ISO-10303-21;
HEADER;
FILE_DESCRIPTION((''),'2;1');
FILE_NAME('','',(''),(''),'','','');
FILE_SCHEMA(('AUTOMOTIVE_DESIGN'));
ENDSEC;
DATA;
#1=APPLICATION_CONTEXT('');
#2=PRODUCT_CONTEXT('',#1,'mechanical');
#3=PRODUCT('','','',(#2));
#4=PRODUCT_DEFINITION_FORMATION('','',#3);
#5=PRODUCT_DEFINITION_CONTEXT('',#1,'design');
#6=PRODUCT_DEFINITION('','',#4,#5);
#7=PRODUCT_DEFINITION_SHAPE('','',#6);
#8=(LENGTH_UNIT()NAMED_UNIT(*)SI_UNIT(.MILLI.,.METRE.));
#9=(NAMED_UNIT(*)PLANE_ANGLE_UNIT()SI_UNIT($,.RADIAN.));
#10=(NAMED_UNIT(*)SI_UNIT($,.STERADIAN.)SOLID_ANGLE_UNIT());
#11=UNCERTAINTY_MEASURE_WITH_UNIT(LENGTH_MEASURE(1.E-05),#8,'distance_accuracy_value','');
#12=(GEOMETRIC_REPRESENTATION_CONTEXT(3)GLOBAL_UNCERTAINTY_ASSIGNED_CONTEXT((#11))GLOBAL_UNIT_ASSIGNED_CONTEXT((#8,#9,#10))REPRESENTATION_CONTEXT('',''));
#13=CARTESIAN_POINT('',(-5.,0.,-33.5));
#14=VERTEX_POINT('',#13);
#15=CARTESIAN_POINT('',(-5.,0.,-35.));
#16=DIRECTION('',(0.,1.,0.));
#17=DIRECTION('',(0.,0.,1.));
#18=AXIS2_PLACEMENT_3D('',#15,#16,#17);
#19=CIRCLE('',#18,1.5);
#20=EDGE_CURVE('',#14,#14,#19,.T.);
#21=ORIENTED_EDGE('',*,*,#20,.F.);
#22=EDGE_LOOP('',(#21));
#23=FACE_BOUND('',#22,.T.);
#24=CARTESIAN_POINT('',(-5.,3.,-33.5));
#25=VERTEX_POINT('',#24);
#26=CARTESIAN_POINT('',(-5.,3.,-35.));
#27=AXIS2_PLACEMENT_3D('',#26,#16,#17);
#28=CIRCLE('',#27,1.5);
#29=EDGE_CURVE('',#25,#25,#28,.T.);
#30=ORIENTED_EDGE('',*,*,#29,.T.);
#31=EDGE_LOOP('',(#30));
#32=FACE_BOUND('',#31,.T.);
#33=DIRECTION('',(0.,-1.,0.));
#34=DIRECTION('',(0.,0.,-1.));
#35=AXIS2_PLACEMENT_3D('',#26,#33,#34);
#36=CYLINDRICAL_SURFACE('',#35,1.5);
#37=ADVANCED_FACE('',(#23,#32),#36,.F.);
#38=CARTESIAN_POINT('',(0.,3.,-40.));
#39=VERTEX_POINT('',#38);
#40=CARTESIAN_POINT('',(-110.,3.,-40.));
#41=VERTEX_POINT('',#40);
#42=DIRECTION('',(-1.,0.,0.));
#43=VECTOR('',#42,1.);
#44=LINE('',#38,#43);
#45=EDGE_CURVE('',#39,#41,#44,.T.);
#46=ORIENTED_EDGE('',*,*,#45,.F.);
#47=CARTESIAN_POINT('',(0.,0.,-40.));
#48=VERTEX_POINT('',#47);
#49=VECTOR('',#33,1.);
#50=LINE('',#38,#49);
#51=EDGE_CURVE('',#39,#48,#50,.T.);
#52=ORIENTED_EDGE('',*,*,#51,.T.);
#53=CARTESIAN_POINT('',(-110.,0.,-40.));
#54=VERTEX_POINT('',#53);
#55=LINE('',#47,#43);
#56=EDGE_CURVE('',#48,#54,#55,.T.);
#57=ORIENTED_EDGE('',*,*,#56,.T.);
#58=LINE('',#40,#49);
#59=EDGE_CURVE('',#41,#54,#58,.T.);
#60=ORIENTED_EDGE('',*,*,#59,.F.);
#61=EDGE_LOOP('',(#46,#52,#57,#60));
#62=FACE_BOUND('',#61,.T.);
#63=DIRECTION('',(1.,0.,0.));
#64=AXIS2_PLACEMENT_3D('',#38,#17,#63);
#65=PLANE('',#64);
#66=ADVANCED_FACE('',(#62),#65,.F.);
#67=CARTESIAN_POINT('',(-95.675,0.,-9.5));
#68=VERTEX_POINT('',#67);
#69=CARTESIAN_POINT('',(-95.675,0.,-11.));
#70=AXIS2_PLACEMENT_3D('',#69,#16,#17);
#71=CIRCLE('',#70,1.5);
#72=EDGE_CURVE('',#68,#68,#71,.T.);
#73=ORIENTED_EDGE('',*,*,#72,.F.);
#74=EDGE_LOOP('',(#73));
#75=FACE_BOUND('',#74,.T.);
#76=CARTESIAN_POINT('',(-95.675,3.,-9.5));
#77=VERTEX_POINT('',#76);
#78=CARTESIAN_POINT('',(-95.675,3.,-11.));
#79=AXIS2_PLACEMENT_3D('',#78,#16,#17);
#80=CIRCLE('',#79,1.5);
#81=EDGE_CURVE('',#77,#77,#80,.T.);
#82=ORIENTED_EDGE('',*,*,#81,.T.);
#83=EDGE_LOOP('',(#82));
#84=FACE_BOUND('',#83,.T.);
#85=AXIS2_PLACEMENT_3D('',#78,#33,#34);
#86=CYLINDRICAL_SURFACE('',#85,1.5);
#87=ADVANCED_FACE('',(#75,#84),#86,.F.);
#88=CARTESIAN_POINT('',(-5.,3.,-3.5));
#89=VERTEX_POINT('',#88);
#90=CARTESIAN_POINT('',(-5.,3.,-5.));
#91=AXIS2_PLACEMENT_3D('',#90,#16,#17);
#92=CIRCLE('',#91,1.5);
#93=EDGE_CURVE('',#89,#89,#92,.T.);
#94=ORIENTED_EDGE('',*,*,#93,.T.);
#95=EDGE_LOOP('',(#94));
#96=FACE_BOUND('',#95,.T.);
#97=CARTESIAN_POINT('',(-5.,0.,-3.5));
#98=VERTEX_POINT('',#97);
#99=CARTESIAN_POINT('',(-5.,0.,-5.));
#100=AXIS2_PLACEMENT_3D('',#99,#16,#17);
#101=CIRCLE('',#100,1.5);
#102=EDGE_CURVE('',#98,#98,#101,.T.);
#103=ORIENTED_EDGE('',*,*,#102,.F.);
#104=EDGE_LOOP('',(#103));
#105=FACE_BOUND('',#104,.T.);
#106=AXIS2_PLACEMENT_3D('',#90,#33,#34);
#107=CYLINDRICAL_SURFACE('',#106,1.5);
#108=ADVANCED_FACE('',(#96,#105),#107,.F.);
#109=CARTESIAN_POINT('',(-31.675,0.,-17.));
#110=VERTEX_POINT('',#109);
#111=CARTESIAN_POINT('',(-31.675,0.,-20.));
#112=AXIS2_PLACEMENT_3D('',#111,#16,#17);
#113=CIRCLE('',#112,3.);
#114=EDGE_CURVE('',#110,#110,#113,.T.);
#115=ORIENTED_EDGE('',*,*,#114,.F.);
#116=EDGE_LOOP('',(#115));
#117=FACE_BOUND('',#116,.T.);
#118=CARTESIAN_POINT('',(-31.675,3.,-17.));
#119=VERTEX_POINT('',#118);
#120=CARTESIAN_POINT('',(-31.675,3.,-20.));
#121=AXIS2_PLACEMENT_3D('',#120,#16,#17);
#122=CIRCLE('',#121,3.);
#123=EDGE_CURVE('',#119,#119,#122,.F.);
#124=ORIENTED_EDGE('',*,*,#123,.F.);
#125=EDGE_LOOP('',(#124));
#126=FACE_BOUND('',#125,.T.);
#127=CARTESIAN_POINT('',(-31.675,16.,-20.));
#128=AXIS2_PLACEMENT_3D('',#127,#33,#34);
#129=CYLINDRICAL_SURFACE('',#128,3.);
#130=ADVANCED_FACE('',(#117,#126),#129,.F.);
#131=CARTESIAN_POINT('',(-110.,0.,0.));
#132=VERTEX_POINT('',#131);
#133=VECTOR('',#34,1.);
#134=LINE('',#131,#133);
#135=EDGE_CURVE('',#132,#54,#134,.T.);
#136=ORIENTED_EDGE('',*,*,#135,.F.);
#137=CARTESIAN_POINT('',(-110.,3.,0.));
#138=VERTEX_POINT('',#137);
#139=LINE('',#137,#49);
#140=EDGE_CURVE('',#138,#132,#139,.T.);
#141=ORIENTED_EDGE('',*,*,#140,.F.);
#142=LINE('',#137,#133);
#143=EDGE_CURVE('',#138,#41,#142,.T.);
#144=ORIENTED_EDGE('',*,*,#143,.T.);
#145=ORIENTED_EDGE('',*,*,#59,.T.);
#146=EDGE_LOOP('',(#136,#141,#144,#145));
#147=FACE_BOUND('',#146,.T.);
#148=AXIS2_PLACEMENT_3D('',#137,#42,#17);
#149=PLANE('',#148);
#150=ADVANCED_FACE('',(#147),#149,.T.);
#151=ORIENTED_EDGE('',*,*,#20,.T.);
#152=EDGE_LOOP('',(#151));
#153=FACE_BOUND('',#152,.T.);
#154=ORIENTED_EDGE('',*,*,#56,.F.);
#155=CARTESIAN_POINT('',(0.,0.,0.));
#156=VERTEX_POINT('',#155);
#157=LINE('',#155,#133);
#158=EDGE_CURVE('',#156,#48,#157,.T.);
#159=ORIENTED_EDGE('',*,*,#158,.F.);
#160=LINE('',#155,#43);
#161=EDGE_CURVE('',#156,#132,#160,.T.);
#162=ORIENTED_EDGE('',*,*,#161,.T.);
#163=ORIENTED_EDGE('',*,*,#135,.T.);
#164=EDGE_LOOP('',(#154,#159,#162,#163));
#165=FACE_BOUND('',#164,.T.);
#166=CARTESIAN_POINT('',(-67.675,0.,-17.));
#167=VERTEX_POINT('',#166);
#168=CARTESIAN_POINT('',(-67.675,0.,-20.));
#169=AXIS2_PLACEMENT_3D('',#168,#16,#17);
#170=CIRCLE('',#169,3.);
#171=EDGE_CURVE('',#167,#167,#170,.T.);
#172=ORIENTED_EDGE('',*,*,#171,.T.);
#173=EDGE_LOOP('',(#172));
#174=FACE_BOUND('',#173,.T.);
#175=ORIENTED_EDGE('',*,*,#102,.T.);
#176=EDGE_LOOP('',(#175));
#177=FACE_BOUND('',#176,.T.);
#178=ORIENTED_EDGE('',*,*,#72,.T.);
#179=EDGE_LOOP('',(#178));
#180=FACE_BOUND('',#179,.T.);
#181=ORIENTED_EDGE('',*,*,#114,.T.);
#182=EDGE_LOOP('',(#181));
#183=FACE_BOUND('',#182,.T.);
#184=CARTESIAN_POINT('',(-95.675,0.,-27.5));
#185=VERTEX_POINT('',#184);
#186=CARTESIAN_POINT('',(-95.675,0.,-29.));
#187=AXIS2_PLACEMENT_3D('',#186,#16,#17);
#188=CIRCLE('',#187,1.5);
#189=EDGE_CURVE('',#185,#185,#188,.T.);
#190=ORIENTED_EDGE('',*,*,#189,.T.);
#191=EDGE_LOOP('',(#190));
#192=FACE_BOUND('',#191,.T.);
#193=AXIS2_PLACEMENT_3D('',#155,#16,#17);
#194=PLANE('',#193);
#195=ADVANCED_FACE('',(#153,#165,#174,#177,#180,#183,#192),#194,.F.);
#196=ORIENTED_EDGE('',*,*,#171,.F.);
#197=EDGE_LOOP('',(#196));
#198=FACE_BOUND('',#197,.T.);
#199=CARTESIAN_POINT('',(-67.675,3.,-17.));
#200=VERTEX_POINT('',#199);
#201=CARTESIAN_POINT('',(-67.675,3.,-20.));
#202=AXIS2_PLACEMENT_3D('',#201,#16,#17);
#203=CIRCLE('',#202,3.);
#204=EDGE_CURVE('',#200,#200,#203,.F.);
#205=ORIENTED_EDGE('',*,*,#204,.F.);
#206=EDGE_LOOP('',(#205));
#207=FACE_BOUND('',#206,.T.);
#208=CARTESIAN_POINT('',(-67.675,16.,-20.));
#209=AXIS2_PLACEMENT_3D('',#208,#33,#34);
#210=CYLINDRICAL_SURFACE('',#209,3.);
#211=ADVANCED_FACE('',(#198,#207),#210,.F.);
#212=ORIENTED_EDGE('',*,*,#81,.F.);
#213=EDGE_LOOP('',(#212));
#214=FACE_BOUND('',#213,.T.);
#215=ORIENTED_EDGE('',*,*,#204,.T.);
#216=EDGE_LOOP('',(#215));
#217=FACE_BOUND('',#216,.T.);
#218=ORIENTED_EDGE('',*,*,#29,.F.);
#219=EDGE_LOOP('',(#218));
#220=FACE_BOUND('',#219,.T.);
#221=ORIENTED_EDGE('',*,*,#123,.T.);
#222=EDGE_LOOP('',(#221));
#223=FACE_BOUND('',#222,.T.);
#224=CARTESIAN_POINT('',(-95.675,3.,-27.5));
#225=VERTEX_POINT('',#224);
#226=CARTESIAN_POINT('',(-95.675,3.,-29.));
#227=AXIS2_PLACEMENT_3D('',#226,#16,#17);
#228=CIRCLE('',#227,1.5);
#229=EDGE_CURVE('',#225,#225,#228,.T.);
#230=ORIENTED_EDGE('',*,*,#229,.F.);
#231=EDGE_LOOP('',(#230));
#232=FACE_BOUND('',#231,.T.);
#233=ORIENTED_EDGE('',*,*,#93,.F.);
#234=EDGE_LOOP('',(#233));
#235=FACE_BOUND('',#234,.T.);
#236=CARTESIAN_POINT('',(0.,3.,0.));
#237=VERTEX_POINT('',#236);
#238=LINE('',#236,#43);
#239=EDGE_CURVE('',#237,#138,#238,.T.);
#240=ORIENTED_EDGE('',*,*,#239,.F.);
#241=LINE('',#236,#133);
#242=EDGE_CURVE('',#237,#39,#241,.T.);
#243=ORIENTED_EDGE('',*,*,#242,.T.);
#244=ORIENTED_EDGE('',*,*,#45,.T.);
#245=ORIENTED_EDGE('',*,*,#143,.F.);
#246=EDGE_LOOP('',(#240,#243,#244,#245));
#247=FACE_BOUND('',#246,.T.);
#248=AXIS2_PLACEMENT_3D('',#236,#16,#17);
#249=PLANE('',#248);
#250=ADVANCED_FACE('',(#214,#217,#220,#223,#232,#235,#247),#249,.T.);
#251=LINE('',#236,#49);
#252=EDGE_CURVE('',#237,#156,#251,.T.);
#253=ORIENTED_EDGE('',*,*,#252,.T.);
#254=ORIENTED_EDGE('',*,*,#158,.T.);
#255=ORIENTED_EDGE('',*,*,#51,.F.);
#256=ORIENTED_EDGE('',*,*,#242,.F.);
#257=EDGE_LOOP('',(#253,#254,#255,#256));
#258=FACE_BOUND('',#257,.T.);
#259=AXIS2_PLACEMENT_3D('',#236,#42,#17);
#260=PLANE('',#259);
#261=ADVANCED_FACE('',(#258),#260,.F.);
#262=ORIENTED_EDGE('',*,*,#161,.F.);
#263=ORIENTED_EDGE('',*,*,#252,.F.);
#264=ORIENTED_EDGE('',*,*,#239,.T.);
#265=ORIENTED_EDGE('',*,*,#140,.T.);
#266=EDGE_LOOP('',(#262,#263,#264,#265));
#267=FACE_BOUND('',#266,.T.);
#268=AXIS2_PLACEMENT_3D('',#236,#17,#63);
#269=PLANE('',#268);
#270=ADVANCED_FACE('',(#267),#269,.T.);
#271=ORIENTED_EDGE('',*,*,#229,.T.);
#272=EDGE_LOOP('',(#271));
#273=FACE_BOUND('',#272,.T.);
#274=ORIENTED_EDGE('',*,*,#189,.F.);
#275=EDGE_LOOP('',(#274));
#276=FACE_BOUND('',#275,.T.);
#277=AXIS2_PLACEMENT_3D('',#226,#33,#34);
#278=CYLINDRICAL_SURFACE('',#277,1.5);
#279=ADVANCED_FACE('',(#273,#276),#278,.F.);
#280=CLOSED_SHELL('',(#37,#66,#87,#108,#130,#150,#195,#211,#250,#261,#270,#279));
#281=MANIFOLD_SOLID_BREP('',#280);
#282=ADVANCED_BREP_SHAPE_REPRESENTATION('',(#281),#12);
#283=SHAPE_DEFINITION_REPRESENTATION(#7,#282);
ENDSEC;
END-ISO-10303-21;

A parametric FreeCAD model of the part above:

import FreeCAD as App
import Part
import Sketcher

V = App.Vector
Q = App.Units.Quantity


def add_polygon(sketch, points):
    """Adds a closed chain of lines whose ends are joined by coincident constraints."""
    first, n = sketch.GeometryCount, len(points)
    for a, b in zip(points, points[1:] + points[:1]):
        sketch.addGeometry(Part.LineSegment(App.Vector(*a, 0), App.Vector(*b, 0)), False)
    for i in range(n):
        sketch.addConstraint(Sketcher.Constraint("Coincident", first + i, 2, first + (i + 1) % n, 1))

doc = App.newDocument("Part")
body = doc.addObject("PartDesign::Body", "Body")

sketch1 = body.newObject("Sketcher::SketchObject", "Sketch")
sketch1.AttachmentSupport = (doc.getObject("XZ_Plane"), [""])
sketch1.MapMode = "FlatFace"
add_polygon(sketch1, [(-110, -40), (-110, 0), (0, 0), (0, -40)])
sketch1.addGeometry(Part.Circle(V(-95.7, -11, 0), V(0, 0, 1), 1.5), False)
sketch1.addGeometry(Part.Circle(V(-5, -5, 0), V(0, 0, 1), 1.5), False)
sketch1.addGeometry(Part.Circle(V(-95.7, -29, 0), V(0, 0, 1), 1.5), False)
sketch1.addGeometry(Part.Circle(V(-5, -35, 0), V(0, 0, 1), 1.5), False)
sketch1.addConstraint([
    Sketcher.Constraint("Vertical", 0),
    Sketcher.Constraint("Horizontal", 1),
    Sketcher.Constraint("Vertical", 2),
    Sketcher.Constraint("Horizontal", 3),
    Sketcher.Constraint("Coincident", 1, 2, -1, 1),
    Sketcher.Constraint("Equal", 4, 5),
    Sketcher.Constraint("Equal", 5, 6),
    Sketcher.Constraint("Equal", 6, 7),
    Sketcher.Constraint("Vertical", 4, 3, 6, 3),
    Sketcher.Constraint("Vertical", 5, 3, 7, 3),
    Sketcher.Constraint("Diameter", 4, Q("3 mm")),
    Sketcher.Constraint("DistanceX", 1, 1, 1, 2, Q("110 mm")),
    Sketcher.Constraint("DistanceY", 0, 1, 0, 2, Q("40 mm")),
    Sketcher.Constraint("DistanceY", 4, 3, -1, 1, Q("11 mm")),
    Sketcher.Constraint("DistanceX", 5, 3, -1, 1, Q("5 mm")),
    Sketcher.Constraint("DistanceY", 5, 3, -1, 1, Q("5 mm")),
    Sketcher.Constraint("DistanceY", 6, 3, -1, 1, Q("29 mm")),
    Sketcher.Constraint("DistanceY", 7, 3, -1, 1, Q("35 mm")),
    Sketcher.Constraint("DistanceX", 4, 3, -1, 1, Q("95.675 mm")),
])
pad1 = body.newObject("PartDesign::Pad", "Pad")
pad1.Profile = sketch1
pad1.Length = 3
pad1.Reversed = True

sketch2 = body.newObject("Sketcher::SketchObject", "Sketch001")
sketch2.AttachmentSupport = (doc.getObject("XZ_Plane"), [""])
sketch2.MapMode = "FlatFace"
sketch2.addGeometry([
    Part.Circle(V(-67.7, -20, 0), V(0, 0, 1), 3),
    Part.Circle(V(-31.7, -20, 0), V(0, 0, 1), 3),
], False)
sketch2.addConstraint([
    Sketcher.Constraint("Equal", 0, 1),
    Sketcher.Constraint("Horizontal", 0, 3, 1, 3),
    Sketcher.Constraint("Diameter", 0, Q("6 mm")),
    Sketcher.Constraint("DistanceY", 0, 3, -1, 1, Q("20 mm")),
    Sketcher.Constraint("DistanceX", 0, 3, 1, 3, Q("36 mm")),
    Sketcher.Constraint("DistanceX", 0, 3, -1, 1, Q("67.675 mm")),
])
pocket1 = body.newObject("PartDesign::Pocket", "Pocket")
pocket1.Profile = sketch2
pocket1.Length = 16

doc.recompute()
